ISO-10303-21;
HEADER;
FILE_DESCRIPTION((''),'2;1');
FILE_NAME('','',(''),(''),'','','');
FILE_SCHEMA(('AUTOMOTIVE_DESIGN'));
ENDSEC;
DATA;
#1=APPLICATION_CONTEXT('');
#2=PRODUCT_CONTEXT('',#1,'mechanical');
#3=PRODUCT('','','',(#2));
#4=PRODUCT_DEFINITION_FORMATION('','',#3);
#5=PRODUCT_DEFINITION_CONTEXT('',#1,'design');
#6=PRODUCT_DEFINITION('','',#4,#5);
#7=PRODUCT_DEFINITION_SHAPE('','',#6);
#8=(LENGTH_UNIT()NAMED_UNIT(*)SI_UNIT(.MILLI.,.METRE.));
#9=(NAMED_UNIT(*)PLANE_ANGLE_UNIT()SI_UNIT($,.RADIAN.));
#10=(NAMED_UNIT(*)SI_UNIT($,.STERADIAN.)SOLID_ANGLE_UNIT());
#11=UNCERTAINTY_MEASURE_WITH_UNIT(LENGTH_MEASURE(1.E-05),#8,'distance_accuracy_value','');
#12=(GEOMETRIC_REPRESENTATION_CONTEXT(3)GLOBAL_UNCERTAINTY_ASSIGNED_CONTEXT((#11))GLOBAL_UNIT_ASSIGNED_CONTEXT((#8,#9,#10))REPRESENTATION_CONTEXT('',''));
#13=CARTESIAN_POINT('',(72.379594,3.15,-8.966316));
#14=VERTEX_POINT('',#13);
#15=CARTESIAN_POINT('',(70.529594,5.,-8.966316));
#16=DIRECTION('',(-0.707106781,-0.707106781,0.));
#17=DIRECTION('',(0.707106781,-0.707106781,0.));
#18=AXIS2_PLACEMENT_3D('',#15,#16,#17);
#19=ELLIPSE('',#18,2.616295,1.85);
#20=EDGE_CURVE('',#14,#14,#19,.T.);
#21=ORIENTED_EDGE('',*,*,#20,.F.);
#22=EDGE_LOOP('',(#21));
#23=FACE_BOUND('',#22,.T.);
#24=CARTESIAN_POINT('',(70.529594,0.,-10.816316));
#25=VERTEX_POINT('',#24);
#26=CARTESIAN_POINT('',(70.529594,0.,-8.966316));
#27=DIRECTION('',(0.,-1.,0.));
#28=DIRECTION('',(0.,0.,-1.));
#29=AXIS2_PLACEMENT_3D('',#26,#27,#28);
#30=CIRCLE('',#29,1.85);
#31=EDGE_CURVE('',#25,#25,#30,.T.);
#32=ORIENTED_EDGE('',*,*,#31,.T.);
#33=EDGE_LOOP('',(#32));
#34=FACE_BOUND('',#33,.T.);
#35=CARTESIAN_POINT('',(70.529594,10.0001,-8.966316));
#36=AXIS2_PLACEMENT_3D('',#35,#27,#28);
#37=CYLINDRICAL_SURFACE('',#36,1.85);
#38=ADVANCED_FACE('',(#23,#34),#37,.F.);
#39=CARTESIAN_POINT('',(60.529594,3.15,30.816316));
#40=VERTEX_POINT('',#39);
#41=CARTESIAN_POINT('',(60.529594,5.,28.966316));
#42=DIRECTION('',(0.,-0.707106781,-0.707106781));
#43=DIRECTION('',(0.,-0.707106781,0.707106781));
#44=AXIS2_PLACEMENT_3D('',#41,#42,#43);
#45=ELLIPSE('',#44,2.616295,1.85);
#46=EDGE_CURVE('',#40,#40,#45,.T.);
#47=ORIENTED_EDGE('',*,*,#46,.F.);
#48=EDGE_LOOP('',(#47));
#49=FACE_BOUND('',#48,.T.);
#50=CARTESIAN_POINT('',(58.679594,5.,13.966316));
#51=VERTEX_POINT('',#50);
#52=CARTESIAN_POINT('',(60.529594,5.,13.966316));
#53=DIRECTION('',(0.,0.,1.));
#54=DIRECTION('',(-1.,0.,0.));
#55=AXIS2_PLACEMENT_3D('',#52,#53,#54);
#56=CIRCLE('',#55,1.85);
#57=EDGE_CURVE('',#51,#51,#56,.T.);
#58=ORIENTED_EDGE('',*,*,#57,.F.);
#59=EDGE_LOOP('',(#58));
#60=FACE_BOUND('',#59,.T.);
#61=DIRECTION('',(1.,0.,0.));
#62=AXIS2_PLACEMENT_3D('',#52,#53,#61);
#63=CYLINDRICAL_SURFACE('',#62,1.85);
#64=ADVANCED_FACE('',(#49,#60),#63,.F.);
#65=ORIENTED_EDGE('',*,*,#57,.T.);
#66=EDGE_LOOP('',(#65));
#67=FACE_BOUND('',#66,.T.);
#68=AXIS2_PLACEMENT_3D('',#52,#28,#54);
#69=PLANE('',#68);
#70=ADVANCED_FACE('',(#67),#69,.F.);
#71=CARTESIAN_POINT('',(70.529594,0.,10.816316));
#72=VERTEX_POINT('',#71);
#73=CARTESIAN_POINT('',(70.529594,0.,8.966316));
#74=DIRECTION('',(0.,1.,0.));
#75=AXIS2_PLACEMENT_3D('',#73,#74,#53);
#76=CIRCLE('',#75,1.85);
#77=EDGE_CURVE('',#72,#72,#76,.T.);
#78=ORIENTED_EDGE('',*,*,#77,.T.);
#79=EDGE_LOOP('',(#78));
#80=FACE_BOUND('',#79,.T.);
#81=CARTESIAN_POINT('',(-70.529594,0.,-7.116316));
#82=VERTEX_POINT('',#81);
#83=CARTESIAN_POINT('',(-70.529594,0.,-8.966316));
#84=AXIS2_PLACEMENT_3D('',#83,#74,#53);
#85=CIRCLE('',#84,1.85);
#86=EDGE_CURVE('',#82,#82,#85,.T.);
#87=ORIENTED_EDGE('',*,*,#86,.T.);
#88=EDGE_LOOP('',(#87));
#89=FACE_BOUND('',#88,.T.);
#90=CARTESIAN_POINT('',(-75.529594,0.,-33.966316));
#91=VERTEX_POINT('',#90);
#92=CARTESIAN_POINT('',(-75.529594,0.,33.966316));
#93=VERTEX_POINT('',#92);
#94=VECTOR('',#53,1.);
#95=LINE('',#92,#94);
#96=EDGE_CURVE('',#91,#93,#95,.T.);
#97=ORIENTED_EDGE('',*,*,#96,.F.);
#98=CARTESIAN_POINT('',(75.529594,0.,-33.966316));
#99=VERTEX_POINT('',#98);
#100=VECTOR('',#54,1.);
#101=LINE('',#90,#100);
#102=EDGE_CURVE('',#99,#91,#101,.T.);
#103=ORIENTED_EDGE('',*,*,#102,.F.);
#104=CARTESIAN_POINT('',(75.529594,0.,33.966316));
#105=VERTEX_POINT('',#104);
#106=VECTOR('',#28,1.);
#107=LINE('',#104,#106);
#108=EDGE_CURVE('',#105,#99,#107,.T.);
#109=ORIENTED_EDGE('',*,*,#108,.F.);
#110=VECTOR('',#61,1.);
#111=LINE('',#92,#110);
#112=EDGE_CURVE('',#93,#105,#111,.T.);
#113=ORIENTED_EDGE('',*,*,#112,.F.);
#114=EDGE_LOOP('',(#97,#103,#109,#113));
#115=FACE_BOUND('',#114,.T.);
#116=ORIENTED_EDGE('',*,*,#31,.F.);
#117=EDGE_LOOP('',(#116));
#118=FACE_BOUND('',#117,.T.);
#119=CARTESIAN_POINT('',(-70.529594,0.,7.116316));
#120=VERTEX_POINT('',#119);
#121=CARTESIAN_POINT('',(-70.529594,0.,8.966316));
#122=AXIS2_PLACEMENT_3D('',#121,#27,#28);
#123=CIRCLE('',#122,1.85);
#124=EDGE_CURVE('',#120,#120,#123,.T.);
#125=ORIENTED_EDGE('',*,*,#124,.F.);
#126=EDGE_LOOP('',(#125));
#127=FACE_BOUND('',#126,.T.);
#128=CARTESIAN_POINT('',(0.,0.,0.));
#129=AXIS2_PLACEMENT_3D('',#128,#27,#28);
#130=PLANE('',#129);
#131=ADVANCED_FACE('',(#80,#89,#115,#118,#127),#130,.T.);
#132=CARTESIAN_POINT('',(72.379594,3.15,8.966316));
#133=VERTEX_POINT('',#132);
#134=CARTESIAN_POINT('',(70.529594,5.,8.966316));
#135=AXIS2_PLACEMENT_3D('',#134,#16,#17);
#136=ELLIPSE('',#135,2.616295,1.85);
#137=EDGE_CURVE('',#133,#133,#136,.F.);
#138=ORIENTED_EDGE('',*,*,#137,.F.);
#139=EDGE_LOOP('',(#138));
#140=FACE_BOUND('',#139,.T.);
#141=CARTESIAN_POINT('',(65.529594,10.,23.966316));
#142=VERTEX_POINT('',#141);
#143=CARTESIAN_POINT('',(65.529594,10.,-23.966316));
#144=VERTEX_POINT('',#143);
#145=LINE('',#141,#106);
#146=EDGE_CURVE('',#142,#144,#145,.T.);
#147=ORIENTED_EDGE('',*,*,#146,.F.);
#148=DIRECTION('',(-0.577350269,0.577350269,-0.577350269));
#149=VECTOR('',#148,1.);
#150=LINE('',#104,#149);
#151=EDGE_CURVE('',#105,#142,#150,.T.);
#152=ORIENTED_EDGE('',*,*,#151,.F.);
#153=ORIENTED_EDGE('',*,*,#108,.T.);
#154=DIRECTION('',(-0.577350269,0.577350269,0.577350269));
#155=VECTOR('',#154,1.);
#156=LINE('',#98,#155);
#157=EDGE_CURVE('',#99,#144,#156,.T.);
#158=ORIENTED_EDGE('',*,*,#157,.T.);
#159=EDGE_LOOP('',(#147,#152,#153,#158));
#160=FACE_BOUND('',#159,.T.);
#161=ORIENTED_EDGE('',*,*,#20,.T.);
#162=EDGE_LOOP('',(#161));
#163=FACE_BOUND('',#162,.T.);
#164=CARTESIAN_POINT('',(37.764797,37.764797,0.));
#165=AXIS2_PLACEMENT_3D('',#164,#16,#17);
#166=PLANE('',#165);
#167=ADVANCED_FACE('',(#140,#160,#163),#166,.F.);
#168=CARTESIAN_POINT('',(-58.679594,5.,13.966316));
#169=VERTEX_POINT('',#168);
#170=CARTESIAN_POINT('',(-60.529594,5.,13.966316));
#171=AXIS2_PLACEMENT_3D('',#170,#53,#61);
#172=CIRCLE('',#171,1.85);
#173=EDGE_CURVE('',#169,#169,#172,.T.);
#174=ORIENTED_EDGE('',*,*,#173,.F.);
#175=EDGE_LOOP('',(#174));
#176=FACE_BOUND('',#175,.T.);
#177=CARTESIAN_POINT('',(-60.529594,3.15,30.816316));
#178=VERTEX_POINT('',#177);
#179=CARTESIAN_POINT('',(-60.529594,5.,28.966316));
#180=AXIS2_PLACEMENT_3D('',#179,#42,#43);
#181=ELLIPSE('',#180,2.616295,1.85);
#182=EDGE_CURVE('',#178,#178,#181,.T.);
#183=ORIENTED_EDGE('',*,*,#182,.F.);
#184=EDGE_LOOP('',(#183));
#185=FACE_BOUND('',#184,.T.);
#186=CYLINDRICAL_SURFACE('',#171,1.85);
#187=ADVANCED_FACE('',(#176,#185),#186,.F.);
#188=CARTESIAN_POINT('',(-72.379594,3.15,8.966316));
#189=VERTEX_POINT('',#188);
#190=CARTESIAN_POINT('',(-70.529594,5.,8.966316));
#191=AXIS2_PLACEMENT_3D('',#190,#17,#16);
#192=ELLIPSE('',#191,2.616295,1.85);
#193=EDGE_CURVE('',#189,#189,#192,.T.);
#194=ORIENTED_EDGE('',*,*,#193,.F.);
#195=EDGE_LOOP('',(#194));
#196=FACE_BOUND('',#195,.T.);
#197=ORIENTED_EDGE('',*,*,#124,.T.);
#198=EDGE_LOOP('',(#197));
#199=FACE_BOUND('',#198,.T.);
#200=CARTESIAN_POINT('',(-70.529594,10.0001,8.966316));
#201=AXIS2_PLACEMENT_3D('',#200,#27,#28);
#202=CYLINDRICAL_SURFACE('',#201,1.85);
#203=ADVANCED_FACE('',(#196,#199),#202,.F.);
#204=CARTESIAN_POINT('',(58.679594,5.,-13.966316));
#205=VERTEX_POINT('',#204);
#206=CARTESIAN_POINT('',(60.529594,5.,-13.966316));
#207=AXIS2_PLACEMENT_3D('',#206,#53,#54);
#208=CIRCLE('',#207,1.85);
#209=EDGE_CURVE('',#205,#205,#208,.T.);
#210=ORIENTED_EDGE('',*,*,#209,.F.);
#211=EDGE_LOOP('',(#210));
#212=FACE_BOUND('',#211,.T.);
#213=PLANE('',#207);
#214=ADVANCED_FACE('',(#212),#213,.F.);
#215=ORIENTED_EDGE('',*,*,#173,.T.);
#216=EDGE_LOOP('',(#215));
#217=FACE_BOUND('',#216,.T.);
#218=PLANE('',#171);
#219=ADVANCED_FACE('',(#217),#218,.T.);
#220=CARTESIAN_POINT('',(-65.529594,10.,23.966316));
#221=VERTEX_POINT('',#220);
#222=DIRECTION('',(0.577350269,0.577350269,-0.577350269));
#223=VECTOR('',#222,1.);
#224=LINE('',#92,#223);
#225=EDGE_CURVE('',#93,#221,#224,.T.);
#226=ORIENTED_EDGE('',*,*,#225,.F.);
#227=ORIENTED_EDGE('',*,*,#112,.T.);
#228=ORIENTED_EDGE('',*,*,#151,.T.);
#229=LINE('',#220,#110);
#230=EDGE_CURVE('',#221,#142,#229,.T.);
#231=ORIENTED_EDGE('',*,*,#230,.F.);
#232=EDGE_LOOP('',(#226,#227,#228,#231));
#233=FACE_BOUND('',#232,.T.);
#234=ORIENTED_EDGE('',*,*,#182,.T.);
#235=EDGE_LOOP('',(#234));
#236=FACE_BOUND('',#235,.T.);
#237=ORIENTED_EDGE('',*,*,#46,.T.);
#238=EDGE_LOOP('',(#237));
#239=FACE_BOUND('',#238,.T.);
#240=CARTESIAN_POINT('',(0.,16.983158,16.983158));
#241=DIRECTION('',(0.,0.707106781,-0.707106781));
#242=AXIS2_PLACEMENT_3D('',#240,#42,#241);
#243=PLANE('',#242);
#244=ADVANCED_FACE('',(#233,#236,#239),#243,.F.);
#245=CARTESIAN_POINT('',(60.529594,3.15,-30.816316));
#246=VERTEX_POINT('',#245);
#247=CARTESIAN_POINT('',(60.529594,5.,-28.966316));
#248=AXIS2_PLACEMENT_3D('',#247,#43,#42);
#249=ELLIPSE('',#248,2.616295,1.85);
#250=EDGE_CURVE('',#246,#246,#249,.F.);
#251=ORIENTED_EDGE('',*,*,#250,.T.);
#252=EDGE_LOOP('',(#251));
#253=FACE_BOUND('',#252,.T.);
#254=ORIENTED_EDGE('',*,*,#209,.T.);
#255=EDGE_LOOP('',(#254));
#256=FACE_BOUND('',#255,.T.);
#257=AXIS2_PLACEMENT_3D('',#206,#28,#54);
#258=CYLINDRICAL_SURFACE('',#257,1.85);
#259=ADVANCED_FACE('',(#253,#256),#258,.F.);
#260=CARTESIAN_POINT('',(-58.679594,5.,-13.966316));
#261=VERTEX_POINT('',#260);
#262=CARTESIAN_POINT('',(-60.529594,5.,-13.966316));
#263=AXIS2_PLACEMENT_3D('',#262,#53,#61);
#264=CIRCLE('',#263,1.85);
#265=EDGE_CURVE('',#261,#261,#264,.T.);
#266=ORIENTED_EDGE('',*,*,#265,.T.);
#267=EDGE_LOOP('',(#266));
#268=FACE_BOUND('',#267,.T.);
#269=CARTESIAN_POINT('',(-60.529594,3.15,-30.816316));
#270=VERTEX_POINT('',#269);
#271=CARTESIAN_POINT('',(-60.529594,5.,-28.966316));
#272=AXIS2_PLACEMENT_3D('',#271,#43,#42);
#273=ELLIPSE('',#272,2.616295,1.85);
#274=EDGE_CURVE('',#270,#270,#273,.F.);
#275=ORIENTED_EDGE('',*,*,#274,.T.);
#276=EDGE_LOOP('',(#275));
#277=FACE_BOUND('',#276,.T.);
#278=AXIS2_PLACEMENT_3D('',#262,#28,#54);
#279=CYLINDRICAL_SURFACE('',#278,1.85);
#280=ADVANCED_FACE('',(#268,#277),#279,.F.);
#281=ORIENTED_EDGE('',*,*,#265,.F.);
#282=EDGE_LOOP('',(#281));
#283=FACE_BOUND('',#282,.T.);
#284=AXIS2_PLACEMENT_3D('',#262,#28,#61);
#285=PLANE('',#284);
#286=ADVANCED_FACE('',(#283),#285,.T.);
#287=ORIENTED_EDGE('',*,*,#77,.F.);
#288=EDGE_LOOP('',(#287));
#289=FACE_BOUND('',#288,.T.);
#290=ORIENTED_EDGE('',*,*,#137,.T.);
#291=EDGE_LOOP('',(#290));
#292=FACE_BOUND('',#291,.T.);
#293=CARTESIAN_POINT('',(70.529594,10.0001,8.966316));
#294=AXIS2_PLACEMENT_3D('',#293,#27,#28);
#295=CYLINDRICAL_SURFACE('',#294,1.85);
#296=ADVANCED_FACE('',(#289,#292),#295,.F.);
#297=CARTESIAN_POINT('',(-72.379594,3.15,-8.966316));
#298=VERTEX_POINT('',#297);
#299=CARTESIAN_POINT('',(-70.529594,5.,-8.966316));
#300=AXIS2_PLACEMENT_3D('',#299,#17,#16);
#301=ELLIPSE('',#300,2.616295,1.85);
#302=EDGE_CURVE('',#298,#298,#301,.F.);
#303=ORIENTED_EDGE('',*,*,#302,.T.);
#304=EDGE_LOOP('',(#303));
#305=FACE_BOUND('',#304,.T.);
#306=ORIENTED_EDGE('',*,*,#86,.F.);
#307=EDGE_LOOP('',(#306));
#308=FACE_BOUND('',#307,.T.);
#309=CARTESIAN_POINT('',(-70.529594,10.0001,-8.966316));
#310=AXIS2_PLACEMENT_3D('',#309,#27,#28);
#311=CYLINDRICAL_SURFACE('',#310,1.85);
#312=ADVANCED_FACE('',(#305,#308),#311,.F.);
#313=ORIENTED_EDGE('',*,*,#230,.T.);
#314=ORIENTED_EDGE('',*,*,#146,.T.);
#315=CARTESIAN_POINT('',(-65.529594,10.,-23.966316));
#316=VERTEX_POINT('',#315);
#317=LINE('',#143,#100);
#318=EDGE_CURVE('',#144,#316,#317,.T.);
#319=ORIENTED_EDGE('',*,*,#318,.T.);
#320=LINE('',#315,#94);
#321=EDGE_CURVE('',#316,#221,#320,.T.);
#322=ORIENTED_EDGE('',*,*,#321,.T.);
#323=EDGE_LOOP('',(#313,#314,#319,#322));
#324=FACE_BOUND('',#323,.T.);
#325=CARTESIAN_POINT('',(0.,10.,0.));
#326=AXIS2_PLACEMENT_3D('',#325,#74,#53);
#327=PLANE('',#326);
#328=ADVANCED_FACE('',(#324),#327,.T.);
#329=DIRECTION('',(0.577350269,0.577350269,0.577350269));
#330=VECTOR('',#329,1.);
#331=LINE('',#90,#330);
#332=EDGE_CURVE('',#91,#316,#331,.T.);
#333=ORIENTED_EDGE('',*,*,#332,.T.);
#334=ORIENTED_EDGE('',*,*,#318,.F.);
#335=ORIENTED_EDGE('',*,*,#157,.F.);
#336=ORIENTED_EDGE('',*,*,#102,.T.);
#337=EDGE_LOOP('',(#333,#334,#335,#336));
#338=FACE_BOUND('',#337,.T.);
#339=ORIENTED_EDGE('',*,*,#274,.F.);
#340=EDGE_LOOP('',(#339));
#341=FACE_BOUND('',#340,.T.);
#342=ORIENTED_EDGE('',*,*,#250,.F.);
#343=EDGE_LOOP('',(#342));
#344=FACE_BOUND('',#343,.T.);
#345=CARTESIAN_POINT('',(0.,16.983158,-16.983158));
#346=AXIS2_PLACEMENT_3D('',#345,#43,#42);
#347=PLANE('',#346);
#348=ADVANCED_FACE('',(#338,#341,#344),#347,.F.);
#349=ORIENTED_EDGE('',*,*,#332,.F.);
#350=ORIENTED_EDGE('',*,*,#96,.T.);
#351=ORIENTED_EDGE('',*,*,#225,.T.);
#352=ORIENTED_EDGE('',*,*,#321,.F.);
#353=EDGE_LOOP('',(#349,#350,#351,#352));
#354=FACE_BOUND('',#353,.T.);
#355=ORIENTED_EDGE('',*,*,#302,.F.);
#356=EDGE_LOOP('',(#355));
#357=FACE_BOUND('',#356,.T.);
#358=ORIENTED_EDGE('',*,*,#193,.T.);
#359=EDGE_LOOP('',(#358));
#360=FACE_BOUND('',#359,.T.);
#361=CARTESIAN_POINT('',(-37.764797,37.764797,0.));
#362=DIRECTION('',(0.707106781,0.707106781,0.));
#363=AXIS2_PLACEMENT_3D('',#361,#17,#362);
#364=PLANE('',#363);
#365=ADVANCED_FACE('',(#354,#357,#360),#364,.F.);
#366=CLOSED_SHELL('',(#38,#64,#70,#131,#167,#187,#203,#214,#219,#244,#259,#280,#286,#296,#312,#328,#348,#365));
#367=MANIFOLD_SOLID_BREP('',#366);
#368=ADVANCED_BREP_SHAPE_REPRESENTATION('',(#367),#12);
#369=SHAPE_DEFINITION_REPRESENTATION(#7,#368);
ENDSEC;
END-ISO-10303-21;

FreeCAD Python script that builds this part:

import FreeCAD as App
import Part
import Sketcher
Q = App.Units.Quantity


def add_polygon(sketch, points):
    """Adds a closed chain of lines whose ends are joined by coincident constraints."""
    first, n = sketch.GeometryCount, len(points)
    for a, b in zip(points, points[1:] + points[:1]):
        sketch.addGeometry(Part.LineSegment(App.Vector(*a, 0), App.Vector(*b, 0)), False)
    for i in range(n):
        sketch.addConstraint(Sketcher.Constraint("Coincident", first + i, 2, first + (i + 1) % n, 1))

doc = App.newDocument("Part")
body = doc.addObject("PartDesign::Body", "Body")

# Sketch on XZ plane
sketch1 = doc.addObject("Sketcher::SketchObject", "Sketch")
body.addObject(sketch1)
sketch1.AttachmentSupport = (doc.XZ_Plane, [""])
sketch1.MapMode = "FlatFace"
add_polygon(sketch1, [(-76, 34), (76, 34), (76, -34), (-76, -34)])  # lines 0-3
sketch1.addConstraint(Sketcher.Constraint("Horizontal", 0))
sketch1.addConstraint(Sketcher.Constraint("Vertical", 1))
sketch1.addConstraint(Sketcher.Constraint("Horizontal", 2))
sketch1.addConstraint(Sketcher.Constraint("Vertical", 3))
sketch1.addConstraint(Sketcher.Constraint("Symmetric", 0, 2, 2, 2, -1, 1))
sketch1.addConstraint(Sketcher.Constraint("DistanceX", 0, 1, 0, 2, Q("151.059189 mm")))
sketch1.addConstraint(Sketcher.Constraint("DistanceY", 1, 2, 1, 1, Q("67.932633 mm")))

# Sketch on XZ plane
sketch2 = doc.addObject("Sketcher::SketchObject", "Sketch001")
body.addObject(sketch2)
sketch2.AttachmentSupport = (doc.XZ_Plane, [""])
sketch2.MapMode = "FlatFace"
sketch2.AttachmentOffset = App.Placement(App.Vector(0, 0, -10), App.Rotation())
add_polygon(sketch2, [(66, 24), (66, -24), (-66, -24), (-66, 24)])  # lines 0-3
sketch2.addConstraint(Sketcher.Constraint("Vertical", 0))
sketch2.addConstraint(Sketcher.Constraint("Horizontal", 1))
sketch2.addConstraint(Sketcher.Constraint("Vertical", 2))
sketch2.addConstraint(Sketcher.Constraint("Horizontal", 3))
sketch2.addConstraint(Sketcher.Constraint("Symmetric", 0, 2, 2, 2, -1, 1))
sketch2.addConstraint(Sketcher.Constraint("DistanceX", 1, 2, 1, 1, Q("131.059189 mm")))
sketch2.addConstraint(Sketcher.Constraint("DistanceY", 0, 2, 0, 1, Q("47.932633 mm")))

additiveloft = doc.addObject("PartDesign::AdditiveLoft", "AdditiveLoft")
body.addObject(additiveloft)
additiveloft.Profile = sketch1
additiveloft.Sections = [sketch2]

# Sketch on XY plane
sketch3 = doc.addObject("Sketcher::SketchObject", "Sketch002")
body.addObject(sketch3)
sketch3.AttachmentSupport = (doc.XY_Plane, [""])
sketch3.MapMode = "FlatFace"
sketch3.AttachmentOffset = App.Placement(App.Vector(0, 0, 33.966316), App.Rotation())
sketch3.addGeometry(Part.Circle(App.Vector(-60.5, 5, 0), App.Vector(0, 0, 1), 1.9), False)
sketch3.addGeometry(Part.Circle(App.Vector(60.5, 5, 0), App.Vector(0, 0, 1), 1.9), False)
sketch3.addConstraint(Sketcher.Constraint("Equal", 0, 1))
sketch3.addConstraint(Sketcher.Constraint("Symmetric", 0, 3, 1, 3, -2))
sketch3.addConstraint(Sketcher.Constraint("Diameter", 0, Q("3.7 mm")))
sketch3.addConstraint(Sketcher.Constraint("DistanceY", -1, 1, 0, 3, Q("5 mm")))
sketch3.addConstraint(Sketcher.Constraint("DistanceX", 0, 3, 1, 3, Q("121.059189 mm")))
pocket1 = doc.addObject("PartDesign::Pocket", "Pocket")
body.addObject(pocket1)
pocket1.Profile = sketch3
pocket1.Length = 20
doc.recompute()

mirrored = doc.addObject("PartDesign::Mirrored", "Mirrored")
body.addObject(mirrored)
mirrored.Originals = [pocket1]
mirrored.MirrorPlane = (doc.XY_Plane, [""])
body.Tip = mirrored

# Sketch on XZ plane
sketch4 = doc.addObject("Sketcher::SketchObject", "Sketch003")
body.addObject(sketch4)
sketch4.AttachmentSupport = (doc.XZ_Plane, [""])
sketch4.MapMode = "FlatFace"
sketch4.addGeometry(Part.Circle(App.Vector(-70.5, 9, 0), App.Vector(0, 0, 1), 1.9), False)
sketch4.addGeometry(Part.Circle(App.Vector(-70.5, -9, 0), App.Vector(0, 0, 1), 1.9), False)
sketch4.addGeometry(Part.Circle(App.Vector(70.5, -9, 0), App.Vector(0, 0, 1), 1.9), False)
sketch4.addGeometry(Part.Circle(App.Vector(70.5, 9, 0), App.Vector(0, 0, 1), 1.9), False)
sketch4.addConstraint(Sketcher.Constraint("Equal", 0, 1))
sketch4.addConstraint(Sketcher.Constraint("Equal", 1, 2))
sketch4.addConstraint(Sketcher.Constraint("Equal", 2, 3))
sketch4.addConstraint(Sketcher.Constraint("Symmetric", 0, 3, 2, 3, -1, 1))
sketch4.addConstraint(Sketcher.Constraint("Symmetric", 1, 3, 3, 3, -1, 1))
sketch4.addConstraint(Sketcher.Constraint("Symmetric", 1, 3, 2, 3, -2))
sketch4.addConstraint(Sketcher.Constraint("Diameter", 0, Q("3.7 mm")))
sketch4.addConstraint(Sketcher.Constraint("DistanceX", 1, 3, 2, 3, Q("141.059189 mm")))
sketch4.addConstraint(Sketcher.Constraint("DistanceY", -1, 1, 0, 3, Q("8.966316 mm")))
pocket2 = doc.addObject("PartDesign::Pocket", "Pocket001")
body.addObject(pocket2)
pocket2.Profile = sketch4
pocket2.Type = "ThroughAll"

doc.recompute()
